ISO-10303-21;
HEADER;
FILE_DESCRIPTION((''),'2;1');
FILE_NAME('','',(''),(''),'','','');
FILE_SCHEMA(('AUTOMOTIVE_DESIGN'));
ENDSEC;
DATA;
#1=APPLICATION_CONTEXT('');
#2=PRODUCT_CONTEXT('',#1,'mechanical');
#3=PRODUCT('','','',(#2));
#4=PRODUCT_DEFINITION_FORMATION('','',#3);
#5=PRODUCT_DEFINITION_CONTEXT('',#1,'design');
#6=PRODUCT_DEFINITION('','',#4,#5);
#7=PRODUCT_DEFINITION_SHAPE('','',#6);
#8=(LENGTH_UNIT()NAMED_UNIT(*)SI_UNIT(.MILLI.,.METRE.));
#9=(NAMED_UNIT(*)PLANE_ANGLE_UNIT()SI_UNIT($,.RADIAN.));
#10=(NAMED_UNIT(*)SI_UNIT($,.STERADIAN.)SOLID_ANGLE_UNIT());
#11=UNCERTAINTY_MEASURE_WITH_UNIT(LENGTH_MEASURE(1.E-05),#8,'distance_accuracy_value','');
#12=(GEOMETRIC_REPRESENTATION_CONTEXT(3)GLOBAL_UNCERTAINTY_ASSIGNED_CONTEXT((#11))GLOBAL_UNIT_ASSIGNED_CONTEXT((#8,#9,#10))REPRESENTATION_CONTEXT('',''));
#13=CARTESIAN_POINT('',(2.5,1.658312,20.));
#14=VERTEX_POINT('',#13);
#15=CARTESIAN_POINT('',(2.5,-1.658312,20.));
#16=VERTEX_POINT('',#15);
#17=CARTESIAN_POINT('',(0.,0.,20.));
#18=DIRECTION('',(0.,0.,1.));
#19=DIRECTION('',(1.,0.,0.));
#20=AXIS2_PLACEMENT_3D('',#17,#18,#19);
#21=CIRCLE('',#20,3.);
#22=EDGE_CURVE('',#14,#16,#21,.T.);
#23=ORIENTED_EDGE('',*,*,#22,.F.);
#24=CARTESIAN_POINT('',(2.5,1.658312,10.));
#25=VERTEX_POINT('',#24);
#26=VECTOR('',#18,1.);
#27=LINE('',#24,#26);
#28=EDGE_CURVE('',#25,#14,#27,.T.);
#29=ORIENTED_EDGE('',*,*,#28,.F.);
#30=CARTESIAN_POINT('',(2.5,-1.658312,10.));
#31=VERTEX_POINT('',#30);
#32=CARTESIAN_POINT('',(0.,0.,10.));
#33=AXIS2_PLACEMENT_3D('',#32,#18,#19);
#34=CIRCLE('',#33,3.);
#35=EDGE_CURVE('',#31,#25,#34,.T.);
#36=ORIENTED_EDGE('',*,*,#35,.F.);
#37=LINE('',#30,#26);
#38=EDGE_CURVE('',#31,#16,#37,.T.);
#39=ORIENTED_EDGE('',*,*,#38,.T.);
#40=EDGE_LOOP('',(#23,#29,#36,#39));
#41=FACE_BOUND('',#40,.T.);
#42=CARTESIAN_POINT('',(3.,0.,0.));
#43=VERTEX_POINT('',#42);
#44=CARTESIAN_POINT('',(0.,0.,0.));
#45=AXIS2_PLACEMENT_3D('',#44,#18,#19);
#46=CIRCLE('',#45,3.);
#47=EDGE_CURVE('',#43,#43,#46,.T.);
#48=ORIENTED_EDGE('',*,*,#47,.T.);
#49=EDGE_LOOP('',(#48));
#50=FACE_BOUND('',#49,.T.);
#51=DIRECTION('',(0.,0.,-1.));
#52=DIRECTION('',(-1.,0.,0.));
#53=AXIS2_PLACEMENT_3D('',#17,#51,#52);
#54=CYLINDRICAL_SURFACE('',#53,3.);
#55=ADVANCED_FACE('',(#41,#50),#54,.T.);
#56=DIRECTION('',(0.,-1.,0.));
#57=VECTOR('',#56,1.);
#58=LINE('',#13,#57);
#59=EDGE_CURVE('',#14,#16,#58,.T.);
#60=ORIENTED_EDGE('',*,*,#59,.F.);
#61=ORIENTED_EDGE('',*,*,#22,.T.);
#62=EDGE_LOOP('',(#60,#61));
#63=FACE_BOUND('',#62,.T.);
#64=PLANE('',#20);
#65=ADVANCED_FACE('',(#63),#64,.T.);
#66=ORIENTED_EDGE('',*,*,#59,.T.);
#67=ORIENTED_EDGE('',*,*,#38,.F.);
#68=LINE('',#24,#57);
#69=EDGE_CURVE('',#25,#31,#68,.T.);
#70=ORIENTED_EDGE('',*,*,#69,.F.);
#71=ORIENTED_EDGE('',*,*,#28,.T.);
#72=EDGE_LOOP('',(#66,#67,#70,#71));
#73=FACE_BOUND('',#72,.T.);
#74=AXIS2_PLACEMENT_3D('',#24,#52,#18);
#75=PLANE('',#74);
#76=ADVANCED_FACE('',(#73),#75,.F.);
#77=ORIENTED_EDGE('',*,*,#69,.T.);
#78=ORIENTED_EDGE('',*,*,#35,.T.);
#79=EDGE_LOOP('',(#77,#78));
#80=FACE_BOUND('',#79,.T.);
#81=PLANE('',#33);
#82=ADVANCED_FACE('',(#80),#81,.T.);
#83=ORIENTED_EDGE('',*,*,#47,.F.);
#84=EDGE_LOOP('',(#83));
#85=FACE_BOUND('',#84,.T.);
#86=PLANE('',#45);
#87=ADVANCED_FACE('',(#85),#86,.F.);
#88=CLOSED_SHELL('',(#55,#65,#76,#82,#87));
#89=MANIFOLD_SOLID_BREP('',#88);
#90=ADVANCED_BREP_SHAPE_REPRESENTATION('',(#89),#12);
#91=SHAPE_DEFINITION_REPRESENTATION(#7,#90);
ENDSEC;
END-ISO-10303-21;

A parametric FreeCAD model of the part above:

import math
import FreeCAD as App
import Part
import Sketcher

doc = App.newDocument("Part")
params = doc.addObject("Spreadsheet::Sheet", "Params")
for row, (alias, value) in enumerate([
    ("sketch1_diameter", "6 mm"),
    ("pad1_length", "20 mm"),
    ("sketch2_radius", "3 mm"),
    ("pocket1_length", "10 mm"),
], start=1):
    params.set(f"A{row}", alias)
    params.set(f"B{row}", "=" + value)
    params.setAlias(f"B{row}", alias)

body = doc.addObject("PartDesign::Body", "Body")

# Sketch on XY plane
sketch1 = body.newObject("Sketcher::SketchObject", "Sketch")
sketch1.AttachmentSupport = (doc.getObject("XY_Plane"), [""])
sketch1.MapMode = "FlatFace"
sketch1.addGeometry(Part.Circle(App.Vector(0, 0, 0), App.Vector(0, 0, 1), 3), False)
sketch1.addConstraint(Sketcher.Constraint("Coincident", 0, 3, -1, 1))
sketch1.addConstraint(Sketcher.Constraint("Diameter", 0, 6.0))
sketch1.setExpression("Constraints[1]", "Params.sketch1_diameter")
pad1 = body.newObject("PartDesign::Pad", "Pad")
pad1.Profile = sketch1
pad1.setExpression("Length", "Params.pad1_length")

# Sketch on XY plane
sketch2 = body.newObject("Sketcher::SketchObject", "Sketch001")
sketch2.AttachmentSupport = (doc.getObject("XY_Plane"), [""])
sketch2.MapMode = "FlatFace"
sketch2.AttachmentOffset = App.Placement(App.Vector(0, 0, 10), App.Rotation())
sketch2.addGeometry(Part.LineSegment(App.Vector(2.5, 1.658312, 0), App.Vector(2.5, -1.658312, 0)), False)
sketch2.addGeometry(Part.ArcOfCircle(Part.Circle(App.Vector(0, 0, 0), App.Vector(0, 0, 1), 3), math.radians(-33.55731), math.radians(33.55731)), False)
sketch2.addConstraint(Sketcher.Constraint("Coincident", 0, 1, 1, 2))
sketch2.addConstraint(Sketcher.Constraint("Coincident", 1, 1, 0, 2))
sketch2.addConstraint(Sketcher.Constraint("Vertical", 0))
sketch2.addConstraint(Sketcher.Constraint("Coincident", 1, 3, -1, 1))
sketch2.addConstraint(Sketcher.Constraint("Radius", 1, 3.0))
sketch2.addConstraint(Sketcher.Constraint("DistanceX", -1, 1, 0, 1, 2.5))
sketch2.setExpression("Constraints[4]", "Params.sketch2_radius")
pocket1 = body.newObject("PartDesign::Pocket", "Pocket")
pocket1.Profile = sketch2
pocket1.setExpression("Length", "Params.pocket1_length")
pocket1.Reversed = True

doc.recompute()
